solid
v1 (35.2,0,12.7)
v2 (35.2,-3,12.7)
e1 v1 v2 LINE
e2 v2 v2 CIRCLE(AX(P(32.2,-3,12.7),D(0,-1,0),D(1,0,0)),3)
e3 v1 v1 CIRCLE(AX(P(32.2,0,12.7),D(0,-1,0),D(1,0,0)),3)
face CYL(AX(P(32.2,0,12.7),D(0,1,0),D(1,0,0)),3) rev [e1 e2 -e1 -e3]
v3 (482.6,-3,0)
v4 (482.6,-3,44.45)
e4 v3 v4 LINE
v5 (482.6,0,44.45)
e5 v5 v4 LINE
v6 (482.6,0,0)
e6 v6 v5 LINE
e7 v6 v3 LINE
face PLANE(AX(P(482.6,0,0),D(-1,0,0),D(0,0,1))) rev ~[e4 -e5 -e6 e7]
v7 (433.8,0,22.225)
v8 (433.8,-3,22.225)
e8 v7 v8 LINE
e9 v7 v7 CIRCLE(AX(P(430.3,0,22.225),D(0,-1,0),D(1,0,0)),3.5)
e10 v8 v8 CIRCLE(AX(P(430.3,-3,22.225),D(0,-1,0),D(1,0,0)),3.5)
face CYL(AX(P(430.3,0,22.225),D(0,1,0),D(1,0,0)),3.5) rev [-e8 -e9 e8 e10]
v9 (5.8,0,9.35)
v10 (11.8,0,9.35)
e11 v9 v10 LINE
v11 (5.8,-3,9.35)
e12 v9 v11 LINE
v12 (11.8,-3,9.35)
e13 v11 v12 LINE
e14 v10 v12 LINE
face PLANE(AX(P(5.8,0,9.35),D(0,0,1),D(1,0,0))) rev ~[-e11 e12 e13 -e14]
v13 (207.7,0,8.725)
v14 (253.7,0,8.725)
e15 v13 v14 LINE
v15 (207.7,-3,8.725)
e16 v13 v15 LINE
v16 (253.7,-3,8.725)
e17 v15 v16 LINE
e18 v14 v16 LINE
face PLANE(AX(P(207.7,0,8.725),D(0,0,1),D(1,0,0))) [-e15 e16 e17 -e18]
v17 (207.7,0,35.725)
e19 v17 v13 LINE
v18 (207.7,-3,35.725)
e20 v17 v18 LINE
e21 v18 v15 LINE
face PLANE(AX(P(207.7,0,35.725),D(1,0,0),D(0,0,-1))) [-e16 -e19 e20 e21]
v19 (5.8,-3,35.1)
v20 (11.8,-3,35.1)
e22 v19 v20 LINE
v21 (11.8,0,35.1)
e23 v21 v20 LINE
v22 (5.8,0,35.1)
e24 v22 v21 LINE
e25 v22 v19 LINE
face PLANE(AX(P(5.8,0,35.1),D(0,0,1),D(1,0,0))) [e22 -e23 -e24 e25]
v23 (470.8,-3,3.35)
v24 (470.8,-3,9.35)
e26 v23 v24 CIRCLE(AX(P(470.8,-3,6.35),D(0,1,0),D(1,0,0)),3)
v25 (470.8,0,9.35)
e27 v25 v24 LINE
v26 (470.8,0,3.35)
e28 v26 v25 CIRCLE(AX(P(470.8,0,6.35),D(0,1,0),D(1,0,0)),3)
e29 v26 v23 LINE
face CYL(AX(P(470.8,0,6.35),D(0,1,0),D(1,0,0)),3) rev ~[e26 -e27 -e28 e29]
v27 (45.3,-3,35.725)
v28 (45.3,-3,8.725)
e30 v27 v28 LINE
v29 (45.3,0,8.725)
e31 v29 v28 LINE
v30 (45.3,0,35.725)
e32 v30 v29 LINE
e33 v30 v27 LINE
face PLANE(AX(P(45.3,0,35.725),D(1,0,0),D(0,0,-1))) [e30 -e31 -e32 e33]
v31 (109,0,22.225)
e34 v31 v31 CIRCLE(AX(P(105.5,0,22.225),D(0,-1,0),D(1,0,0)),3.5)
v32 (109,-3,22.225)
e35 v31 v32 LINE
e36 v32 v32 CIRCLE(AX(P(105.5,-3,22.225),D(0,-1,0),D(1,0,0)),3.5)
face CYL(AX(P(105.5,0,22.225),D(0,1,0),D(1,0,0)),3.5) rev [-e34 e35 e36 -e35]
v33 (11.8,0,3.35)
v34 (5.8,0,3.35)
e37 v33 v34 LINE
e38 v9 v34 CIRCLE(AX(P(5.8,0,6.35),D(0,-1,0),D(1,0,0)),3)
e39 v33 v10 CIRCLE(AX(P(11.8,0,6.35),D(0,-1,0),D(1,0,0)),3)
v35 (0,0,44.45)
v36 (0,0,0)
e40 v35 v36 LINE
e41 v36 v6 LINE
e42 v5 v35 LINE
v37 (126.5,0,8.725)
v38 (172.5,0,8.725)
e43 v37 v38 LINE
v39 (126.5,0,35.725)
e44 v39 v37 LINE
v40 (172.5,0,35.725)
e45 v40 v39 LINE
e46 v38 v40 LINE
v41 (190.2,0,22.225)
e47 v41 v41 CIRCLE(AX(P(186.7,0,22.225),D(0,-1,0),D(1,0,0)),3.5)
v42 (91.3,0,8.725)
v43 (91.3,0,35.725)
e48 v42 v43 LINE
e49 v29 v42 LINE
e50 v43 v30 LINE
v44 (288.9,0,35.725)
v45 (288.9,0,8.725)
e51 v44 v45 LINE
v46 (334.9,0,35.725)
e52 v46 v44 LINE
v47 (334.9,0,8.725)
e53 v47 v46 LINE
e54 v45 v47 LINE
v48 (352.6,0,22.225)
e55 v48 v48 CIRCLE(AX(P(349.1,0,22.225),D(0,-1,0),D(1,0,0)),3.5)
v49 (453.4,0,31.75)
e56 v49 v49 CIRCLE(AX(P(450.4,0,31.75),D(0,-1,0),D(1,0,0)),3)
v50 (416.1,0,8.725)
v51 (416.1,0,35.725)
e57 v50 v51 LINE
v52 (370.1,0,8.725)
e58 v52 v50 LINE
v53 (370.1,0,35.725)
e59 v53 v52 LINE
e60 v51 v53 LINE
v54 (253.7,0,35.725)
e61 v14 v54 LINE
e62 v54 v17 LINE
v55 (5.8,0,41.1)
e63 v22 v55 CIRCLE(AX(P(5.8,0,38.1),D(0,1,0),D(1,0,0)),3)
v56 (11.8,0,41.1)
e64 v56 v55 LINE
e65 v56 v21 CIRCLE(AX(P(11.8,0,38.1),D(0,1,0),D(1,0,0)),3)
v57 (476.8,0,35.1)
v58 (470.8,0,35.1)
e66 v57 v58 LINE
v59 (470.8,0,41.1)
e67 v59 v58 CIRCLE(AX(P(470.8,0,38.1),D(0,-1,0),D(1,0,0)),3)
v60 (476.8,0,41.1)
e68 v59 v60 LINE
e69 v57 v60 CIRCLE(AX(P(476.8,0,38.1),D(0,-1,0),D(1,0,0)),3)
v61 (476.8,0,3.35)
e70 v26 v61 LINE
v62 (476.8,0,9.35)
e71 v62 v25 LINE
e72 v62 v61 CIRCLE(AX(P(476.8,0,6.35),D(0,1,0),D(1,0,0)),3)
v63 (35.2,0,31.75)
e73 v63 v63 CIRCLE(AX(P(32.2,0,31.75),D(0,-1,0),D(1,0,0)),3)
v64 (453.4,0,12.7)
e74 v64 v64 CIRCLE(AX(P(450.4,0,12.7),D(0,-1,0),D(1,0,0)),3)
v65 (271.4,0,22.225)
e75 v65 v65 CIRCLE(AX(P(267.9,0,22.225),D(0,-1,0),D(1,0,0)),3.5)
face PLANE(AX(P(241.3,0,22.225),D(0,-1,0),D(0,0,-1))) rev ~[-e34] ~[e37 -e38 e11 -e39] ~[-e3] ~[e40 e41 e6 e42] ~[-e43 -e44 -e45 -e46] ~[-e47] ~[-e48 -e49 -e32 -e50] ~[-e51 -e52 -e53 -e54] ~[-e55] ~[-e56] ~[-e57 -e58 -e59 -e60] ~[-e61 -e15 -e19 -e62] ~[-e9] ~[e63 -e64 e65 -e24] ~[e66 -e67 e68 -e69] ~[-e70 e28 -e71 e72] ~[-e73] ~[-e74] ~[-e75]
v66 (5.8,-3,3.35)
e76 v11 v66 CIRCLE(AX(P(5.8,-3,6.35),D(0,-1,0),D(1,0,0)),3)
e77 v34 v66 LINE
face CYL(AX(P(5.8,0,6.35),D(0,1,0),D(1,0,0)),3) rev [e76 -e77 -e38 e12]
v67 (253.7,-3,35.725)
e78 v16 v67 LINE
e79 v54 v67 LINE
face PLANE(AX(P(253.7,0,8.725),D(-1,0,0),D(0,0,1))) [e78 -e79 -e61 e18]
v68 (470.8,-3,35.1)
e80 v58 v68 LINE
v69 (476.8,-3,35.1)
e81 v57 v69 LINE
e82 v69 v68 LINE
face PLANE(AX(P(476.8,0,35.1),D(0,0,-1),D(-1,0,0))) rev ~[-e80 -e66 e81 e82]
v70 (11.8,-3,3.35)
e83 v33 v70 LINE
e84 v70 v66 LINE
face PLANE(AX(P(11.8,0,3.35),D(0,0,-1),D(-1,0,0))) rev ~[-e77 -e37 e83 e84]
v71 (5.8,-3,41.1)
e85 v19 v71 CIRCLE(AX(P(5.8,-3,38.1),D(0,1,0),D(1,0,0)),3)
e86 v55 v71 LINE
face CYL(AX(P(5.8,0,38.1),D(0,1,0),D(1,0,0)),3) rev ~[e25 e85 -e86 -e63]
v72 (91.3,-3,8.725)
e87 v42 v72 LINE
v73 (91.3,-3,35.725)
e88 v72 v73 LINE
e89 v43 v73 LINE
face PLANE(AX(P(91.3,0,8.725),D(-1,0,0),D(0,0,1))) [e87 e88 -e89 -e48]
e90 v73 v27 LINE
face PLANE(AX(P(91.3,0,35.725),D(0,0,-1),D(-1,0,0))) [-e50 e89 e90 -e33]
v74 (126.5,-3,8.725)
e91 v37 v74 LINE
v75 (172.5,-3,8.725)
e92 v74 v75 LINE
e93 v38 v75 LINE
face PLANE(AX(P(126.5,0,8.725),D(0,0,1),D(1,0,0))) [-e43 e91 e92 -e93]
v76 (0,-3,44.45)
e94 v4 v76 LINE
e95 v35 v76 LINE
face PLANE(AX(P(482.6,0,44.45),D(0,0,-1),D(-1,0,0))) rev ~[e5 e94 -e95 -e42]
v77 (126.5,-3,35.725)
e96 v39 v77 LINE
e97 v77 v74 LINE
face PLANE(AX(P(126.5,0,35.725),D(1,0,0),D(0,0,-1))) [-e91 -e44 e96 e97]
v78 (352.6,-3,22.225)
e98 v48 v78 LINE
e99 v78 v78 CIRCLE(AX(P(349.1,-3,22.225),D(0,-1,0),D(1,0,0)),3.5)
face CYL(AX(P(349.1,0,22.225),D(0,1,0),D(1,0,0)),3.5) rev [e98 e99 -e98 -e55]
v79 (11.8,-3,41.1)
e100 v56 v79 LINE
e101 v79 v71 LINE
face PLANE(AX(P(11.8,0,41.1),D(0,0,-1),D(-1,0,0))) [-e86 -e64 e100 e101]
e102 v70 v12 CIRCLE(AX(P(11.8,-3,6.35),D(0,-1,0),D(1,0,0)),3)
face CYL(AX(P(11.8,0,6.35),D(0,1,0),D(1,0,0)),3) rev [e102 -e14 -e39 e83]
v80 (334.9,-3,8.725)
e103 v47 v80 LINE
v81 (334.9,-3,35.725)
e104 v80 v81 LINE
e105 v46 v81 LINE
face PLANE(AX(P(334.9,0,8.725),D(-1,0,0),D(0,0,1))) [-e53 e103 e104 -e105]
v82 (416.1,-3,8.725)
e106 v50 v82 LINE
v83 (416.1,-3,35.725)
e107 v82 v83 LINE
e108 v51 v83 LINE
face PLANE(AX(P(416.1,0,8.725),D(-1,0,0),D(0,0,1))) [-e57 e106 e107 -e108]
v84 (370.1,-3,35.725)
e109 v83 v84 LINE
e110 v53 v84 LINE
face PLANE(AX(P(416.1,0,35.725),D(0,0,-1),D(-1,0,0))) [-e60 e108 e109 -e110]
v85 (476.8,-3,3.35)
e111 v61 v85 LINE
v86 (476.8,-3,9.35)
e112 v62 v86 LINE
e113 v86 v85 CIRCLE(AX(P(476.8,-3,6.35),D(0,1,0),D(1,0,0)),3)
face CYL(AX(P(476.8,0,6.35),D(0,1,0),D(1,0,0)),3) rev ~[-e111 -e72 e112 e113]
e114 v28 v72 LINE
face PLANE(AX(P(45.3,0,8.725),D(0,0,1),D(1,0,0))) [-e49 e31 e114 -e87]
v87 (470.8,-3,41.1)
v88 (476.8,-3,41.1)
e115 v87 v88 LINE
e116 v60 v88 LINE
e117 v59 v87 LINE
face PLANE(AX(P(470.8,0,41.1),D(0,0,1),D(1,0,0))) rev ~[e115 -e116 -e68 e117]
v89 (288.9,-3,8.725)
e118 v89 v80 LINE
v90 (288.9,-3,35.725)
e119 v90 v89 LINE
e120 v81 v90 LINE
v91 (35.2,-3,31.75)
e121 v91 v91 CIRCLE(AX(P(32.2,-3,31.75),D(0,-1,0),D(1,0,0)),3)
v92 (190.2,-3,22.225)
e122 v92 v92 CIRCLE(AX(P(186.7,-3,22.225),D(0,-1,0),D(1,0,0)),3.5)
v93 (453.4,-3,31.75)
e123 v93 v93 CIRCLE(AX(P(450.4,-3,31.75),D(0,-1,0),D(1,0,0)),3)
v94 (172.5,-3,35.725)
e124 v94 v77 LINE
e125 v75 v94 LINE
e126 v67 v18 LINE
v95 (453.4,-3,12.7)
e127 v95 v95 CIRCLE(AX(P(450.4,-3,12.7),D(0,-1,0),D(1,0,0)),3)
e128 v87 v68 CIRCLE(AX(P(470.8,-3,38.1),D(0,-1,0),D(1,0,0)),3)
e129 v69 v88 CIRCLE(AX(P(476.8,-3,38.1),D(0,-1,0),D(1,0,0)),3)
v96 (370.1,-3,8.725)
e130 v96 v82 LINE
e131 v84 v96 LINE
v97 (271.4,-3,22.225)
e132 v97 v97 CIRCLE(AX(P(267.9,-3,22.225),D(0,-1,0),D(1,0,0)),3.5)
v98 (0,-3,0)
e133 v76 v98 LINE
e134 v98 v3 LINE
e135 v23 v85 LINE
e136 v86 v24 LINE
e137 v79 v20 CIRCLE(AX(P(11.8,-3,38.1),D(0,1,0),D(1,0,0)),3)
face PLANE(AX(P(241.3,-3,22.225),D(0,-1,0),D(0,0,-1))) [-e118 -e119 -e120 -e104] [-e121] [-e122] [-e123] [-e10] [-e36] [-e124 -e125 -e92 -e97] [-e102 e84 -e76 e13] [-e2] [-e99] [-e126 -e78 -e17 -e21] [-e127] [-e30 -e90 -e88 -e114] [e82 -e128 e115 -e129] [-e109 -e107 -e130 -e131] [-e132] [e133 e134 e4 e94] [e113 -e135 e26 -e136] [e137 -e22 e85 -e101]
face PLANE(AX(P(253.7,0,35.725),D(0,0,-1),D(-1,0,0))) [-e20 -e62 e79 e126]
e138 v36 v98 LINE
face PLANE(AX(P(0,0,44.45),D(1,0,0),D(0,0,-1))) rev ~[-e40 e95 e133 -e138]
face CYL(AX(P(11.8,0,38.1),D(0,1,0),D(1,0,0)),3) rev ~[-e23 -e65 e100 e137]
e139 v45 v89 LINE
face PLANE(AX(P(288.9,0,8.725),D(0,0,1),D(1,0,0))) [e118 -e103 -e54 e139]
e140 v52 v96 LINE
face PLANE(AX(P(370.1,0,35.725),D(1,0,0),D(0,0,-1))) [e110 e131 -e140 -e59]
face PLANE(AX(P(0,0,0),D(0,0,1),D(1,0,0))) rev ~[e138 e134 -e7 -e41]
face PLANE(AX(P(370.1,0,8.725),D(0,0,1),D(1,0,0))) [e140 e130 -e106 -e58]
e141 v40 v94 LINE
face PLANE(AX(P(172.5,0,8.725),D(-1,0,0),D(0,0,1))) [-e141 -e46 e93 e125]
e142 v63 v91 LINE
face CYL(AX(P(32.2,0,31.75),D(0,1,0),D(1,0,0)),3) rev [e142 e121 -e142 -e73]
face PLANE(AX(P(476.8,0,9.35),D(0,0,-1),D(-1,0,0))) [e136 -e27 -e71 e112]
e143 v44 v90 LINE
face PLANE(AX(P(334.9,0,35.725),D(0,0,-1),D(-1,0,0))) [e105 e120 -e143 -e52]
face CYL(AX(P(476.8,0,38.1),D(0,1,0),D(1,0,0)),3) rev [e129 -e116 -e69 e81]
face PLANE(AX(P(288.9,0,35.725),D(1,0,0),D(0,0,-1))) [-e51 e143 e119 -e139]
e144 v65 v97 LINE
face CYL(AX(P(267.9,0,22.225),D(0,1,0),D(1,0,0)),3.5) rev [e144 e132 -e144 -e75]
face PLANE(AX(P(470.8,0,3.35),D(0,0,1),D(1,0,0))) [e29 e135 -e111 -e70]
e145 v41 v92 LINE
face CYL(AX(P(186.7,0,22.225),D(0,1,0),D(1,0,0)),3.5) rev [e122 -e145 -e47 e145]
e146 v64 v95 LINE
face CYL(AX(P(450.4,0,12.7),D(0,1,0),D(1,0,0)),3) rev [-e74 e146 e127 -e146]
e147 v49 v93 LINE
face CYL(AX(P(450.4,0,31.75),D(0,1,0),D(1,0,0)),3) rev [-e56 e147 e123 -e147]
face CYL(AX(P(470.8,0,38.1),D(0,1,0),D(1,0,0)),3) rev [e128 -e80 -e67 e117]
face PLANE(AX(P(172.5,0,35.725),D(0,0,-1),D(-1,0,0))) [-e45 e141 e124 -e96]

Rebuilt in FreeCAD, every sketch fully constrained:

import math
import FreeCAD as App
import Part
import Sketcher
Q = App.Units.Quantity


def add_polygon(sketch, points):
    """Adds a closed chain of lines whose ends are joined by coincident constraints."""
    first, n = sketch.GeometryCount, len(points)
    for a, b in zip(points, points[1:] + points[:1]):
        sketch.addGeometry(Part.LineSegment(App.Vector(*a, 0), App.Vector(*b, 0)), False)
    for i in range(n):
        sketch.addConstraint(Sketcher.Constraint("Coincident", first + i, 2, first + (i + 1) % n, 1))

doc = App.newDocument("Part")
body = doc.addObject("PartDesign::Body", "Body")

sketch1 = doc.addObject("Sketcher::SketchObject", "Sketch")
body.addObject(sketch1)
sketch1.AttachmentSupport = (doc.XZ_Plane, [""])
sketch1.MapMode = "FlatFace"
add_polygon(sketch1, [(482.6, 0), (482.6, 44.5), (0, 44.5), (0, 0)])
sketch1.addGeometry(Part.ArcOfCircle(Part.Circle(App.Vector(5.8, 6.3, 0), App.Vector(0, 0, 1), 3), math.radians(90), math.radians(270)), False)
sketch1.addGeometry(Part.LineSegment(App.Vector(5.8, 9.3, 0), App.Vector(11.8, 9.3, 0)), False)
sketch1.addGeometry(Part.ArcOfCircle(Part.Circle(App.Vector(11.8, 6.3, 0), App.Vector(0, 0, 1), 3), math.radians(-90), math.radians(90)), False)
sketch1.addGeometry(Part.LineSegment(App.Vector(11.8, 3.4, 0), App.Vector(5.8, 3.4, 0)), False)
sketch1.addGeometry(Part.Circle(App.Vector(32.2, 12.7, 0), App.Vector(0, 0, 1), 3), False)
sketch1.addGeometry(Part.LineSegment(App.Vector(476.8, 3.4, 0), App.Vector(470.8, 3.4, 0)), False)
sketch1.addGeometry(Part.ArcOfCircle(Part.Circle(App.Vector(470.8, 6.3, 0), App.Vector(0, 0, 1), 3), math.radians(90), math.radians(270)), False)
sketch1.addGeometry(Part.LineSegment(App.Vector(470.8, 9.3, 0), App.Vector(476.8, 9.3, 0)), False)
sketch1.addGeometry(Part.ArcOfCircle(Part.Circle(App.Vector(476.8, 6.3, 0), App.Vector(0, 0, 1), 3), math.radians(-90), math.radians(90)), False)
sketch1.addGeometry(Part.Circle(App.Vector(450.4, 12.7, 0), App.Vector(0, 0, 1), 3), False)
add_polygon(sketch1, [(91.3, 8.7), (45.3, 8.7), (45.3, 35.7), (91.3, 35.7)])
sketch1.addGeometry(Part.Circle(App.Vector(105.5, 22.2, 0), App.Vector(0, 0, 1), 3.5), False)
sketch1.addGeometry(Part.Circle(App.Vector(32.2, 31.8, 0), App.Vector(0, 0, 1), 3), False)
add_polygon(sketch1, [(126.5, 8.7), (126.5, 35.7), (172.5, 35.7), (172.5, 8.7)])
sketch1.addGeometry(Part.Circle(App.Vector(186.7, 22.2, 0), App.Vector(0, 0, 1), 3.5), False)
add_polygon(sketch1, [(207.7, 8.7), (207.7, 35.7), (253.7, 35.7), (253.7, 8.7)])
sketch1.addGeometry(Part.LineSegment(App.Vector(11.8, 35.1, 0), App.Vector(5.8, 35.1, 0)), False)
sketch1.addGeometry(Part.ArcOfCircle(Part.Circle(App.Vector(5.8, 38.1, 0), App.Vector(0, 0, 1), 3), math.radians(90), math.radians(270)), False)
sketch1.addGeometry(Part.LineSegment(App.Vector(5.8, 41.1, 0), App.Vector(11.8, 41.1, 0)), False)
sketch1.addGeometry(Part.ArcOfCircle(Part.Circle(App.Vector(11.8, 38.1, 0), App.Vector(0, 0, 1), 3), math.radians(-90), math.radians(90)), False)
sketch1.addGeometry(Part.Circle(App.Vector(267.9, 22.2, 0), App.Vector(0, 0, 1), 3.5), False)
add_polygon(sketch1, [(288.9, 8.7), (288.9, 35.7), (334.9, 35.7), (334.9, 8.7)])
sketch1.addGeometry(Part.Circle(App.Vector(349.1, 22.2, 0), App.Vector(0, 0, 1), 3.5), False)
add_polygon(sketch1, [(370.1, 8.7), (370.1, 35.7), (416.1, 35.7), (416.1, 8.7)])
sketch1.addGeometry(Part.Circle(App.Vector(430.3, 22.2, 0), App.Vector(0, 0, 1), 3.5), False)
sketch1.addGeometry(Part.Circle(App.Vector(450.4, 31.8, 0), App.Vector(0, 0, 1), 3), False)
sketch1.addGeometry(Part.ArcOfCircle(Part.Circle(App.Vector(476.8, 38.1, 0), App.Vector(0, 0, 1), 3), math.radians(-90), math.radians(90)), False)
sketch1.addGeometry(Part.LineSegment(App.Vector(476.8, 35.1, 0), App.Vector(470.8, 35.1, 0)), False)
sketch1.addGeometry(Part.ArcOfCircle(Part.Circle(App.Vector(470.8, 38.1, 0), App.Vector(0, 0, 1), 3), math.radians(90), math.radians(270)), False)
sketch1.addGeometry(Part.LineSegment(App.Vector(470.8, 41.1, 0), App.Vector(476.8, 41.1, 0)), False)
sketch1.addConstraint([
    Sketcher.Constraint("Tangent", 4, 1, 5, 1),
    Sketcher.Constraint("Tangent", 5, 2, 6, 2),
    Sketcher.Constraint("Tangent", 6, 1, 7, 1),
    Sketcher.Constraint("Tangent", 7, 2, 4, 2),
    Sketcher.Constraint("Tangent", 9, 2, 10, 2),
    Sketcher.Constraint("Tangent", 10, 1, 11, 1),
    Sketcher.Constraint("Tangent", 11, 2, 12, 2),
    Sketcher.Constraint("Tangent", 12, 1, 9, 1),
    Sketcher.Constraint("Tangent", 29, 2, 30, 2),
    Sketcher.Constraint("Tangent", 30, 1, 31, 1),
    Sketcher.Constraint("Tangent", 31, 2, 32, 2),
    Sketcher.Constraint("Tangent", 32, 1, 29, 1),
    Sketcher.Constraint("Tangent", 45, 1, 46, 1),
    Sketcher.Constraint("Tangent", 46, 2, 47, 2),
    Sketcher.Constraint("Tangent", 47, 1, 48, 1),
    Sketcher.Constraint("Tangent", 48, 2, 45, 2),
    Sketcher.Constraint("Vertical", 0),
    Sketcher.Constraint("Horizontal", 1),
    Sketcher.Constraint("Vertical", 2),
    Sketcher.Constraint("Horizontal", 3),
    Sketcher.Constraint("Horizontal", 5),
    Sketcher.Constraint("Horizontal", 7),
    Sketcher.Constraint("Horizontal", 9),
    Sketcher.Constraint("Horizontal", 11),
    Sketcher.Constraint("Horizontal", 14),
    Sketcher.Constraint("Vertical", 15),
    Sketcher.Constraint("Horizontal", 16),
    Sketcher.Constraint("Vertical", 17),
    Sketcher.Constraint("Vertical", 20),
    Sketcher.Constraint("Horizontal", 21),
    Sketcher.Constraint("Vertical", 22),
    Sketcher.Constraint("Horizontal", 23),
    Sketcher.Constraint("Vertical", 25),
    Sketcher.Constraint("Horizontal", 26),
    Sketcher.Constraint("Vertical", 27),
    Sketcher.Constraint("Horizontal", 28),
    Sketcher.Constraint("Horizontal", 29),
    Sketcher.Constraint("Horizontal", 31),
    Sketcher.Constraint("Vertical", 34),
    Sketcher.Constraint("Horizontal", 35),
    Sketcher.Constraint("Vertical", 36),
    Sketcher.Constraint("Horizontal", 37),
    Sketcher.Constraint("Vertical", 39),
    Sketcher.Constraint("Horizontal", 40),
    Sketcher.Constraint("Vertical", 41),
    Sketcher.Constraint("Horizontal", 42),
    Sketcher.Constraint("Horizontal", 46),
    Sketcher.Constraint("Horizontal", 48),
    Sketcher.Constraint("Coincident", 2, 2, -1, 1),
    Sketcher.Constraint("Equal", 6, 8),
    Sketcher.Constraint("Equal", 8, 10),
    Sketcher.Constraint("Equal", 12, 13),
    Sketcher.Constraint("Equal", 13, 19),
    Sketcher.Constraint("Equal", 18, 24),
    Sketcher.Constraint("Equal", 19, 30),
    Sketcher.Constraint("Equal", 24, 33),
    Sketcher.Constraint("Equal", 33, 38),
    Sketcher.Constraint("Equal", 38, 43),
    Sketcher.Constraint("Equal", 32, 44),
    Sketcher.Constraint("Equal", 44, 45),
    Sketcher.Constraint("Horizontal", 6, 3, 10, 3),
    Sketcher.Constraint("Horizontal", 8, 3, 13, 3),
    Sketcher.Constraint("Horizontal", 18, 3, 24, 3),
    Sketcher.Constraint("Horizontal", 24, 3, 33, 3),
    Sketcher.Constraint("Horizontal", 33, 3, 38, 3),
    Sketcher.Constraint("Horizontal", 38, 3, 43, 3),
    Sketcher.Constraint("Horizontal", 19, 3, 44, 3),
    Sketcher.Constraint("Horizontal", 32, 3, 45, 3),
    Sketcher.Constraint("Horizontal", 16, 2, 20, 2),
    Sketcher.Constraint("Horizontal", 17, 2, 22, 2),
    Sketcher.Constraint("Horizontal", 21, 2, 25, 2),
    Sketcher.Constraint("Horizontal", 23, 2, 27, 2),
    Sketcher.Constraint("Horizontal", 26, 2, 34, 2),
    Sketcher.Constraint("Horizontal", 28, 2, 36, 2),
    Sketcher.Constraint("Horizontal", 35, 2, 39, 2),
    Sketcher.Constraint("Horizontal", 37, 2, 41, 2),
    Sketcher.Constraint("Vertical", 8, 3, 19, 3),
    Sketcher.Constraint("Vertical", 4, 3, 30, 3),
    Sketcher.Constraint("Vertical", 6, 3, 32, 3),
    Sketcher.Constraint("Vertical", 13, 3, 44, 3),
    Sketcher.Constraint("Vertical", 12, 3, 45, 3),
    Sketcher.Constraint("Vertical", 10, 3, 47, 3),
    Sketcher.Constraint("Equal", 7, 9),
    Sketcher.Constraint("Equal", 16, 21),
    Sketcher.Constraint("Equal", 23, 26),
    Sketcher.Constraint("Equal", 28, 35),
    Sketcher.Constraint("Equal", 37, 40),
    Sketcher.Constraint("DistanceX", 1, 2, 1, 1, Q("19 in")),
    Sketcher.Constraint("DistanceY", 6, 3, 19, 3, Q("1 in")),
    Sketcher.Constraint("DistanceY", 8, 3, 30, 3, Q("1 in")),
    Sketcher.Constraint("Diameter", 18, Q("0.2756 in")),
    Sketcher.Constraint("DistanceY", 0, 1, 0, 2, Q("1.75 in")),
    Sketcher.Constraint("DistanceY", -1, 1, 8, 3, Q("0.5 in")),
    Sketcher.Constraint("Radius", 4, Q("0.1181 in")),
    Sketcher.Constraint("DistanceY", 44, 3, 0, 2, Q("0.5 in")),
    Sketcher.Constraint("DistanceY", 15, 1, 15, 2, Q("1.063 in")),
    Sketcher.Constraint("DistanceY", -1, 1, 18, 3, Q("0.875 in")),
    Sketcher.Constraint("DistanceX", 5, 1, 5, 2, Q("6 mm")),
    Sketcher.Constraint("DistanceX", 14, 2, 14, 1, Q("46 mm")),
    Sketcher.Constraint("DistanceX", -1, 1, 24, 3, Q("7.3504 in")),
    Sketcher.Constraint("DistanceX", -1, 1, 38, 3, Q("13.7441 in")),
    Sketcher.Constraint("DistanceY", -1, 1, 14, 2, Q("0.3435 in")),
    Sketcher.Constraint("DistanceX", -1, 1, 16, 2, Q("3.5945 in")),
    Sketcher.Constraint("DistanceX", -1, 1, 26, 2, Q("9.9882 in")),
    Sketcher.Constraint("DistanceX", -1, 1, 40, 2, Q("16.3819 in")),
    Sketcher.Constraint("DistanceX", 4, 3, 12, 3, Q("18.5433 in")),
    Sketcher.Constraint("DistanceX", 4, 3, 18, 3, Q("3.9252 in")),
    Sketcher.Constraint("DistanceX", 18, 3, 33, 3, Q("6.3937 in")),
    Sketcher.Constraint("DistanceX", 38, 3, 13, 3, Q("3.9882 in")),
    Sketcher.Constraint("DistanceX", 43, 3, 10, 3, Q("1.5945 in")),
    Sketcher.Constraint("DistanceX", 5, 2, 14, 2, Q("1.3189 in")),
    Sketcher.Constraint("DistanceX", 18, 3, 21, 2, Q("2.6378 in")),
    Sketcher.Constraint("DistanceX", 33, 3, 35, 2, Q("2.6378 in")),
    Sketcher.Constraint("DistanceX", -1, 1, 8, 3, Q("32.2 mm")),
])
pad1 = doc.addObject("PartDesign::Pad", "Pad")
body.addObject(pad1)
pad1.Profile = sketch1
pad1.Length = Q("0.1181102 in")

doc.recompute()
